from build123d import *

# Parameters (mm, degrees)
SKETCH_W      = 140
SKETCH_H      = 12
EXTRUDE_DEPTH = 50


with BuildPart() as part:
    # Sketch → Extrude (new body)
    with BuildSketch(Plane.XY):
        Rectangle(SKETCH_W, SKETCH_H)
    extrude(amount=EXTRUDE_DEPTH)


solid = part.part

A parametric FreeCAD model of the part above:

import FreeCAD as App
import Part
import Sketcher

V = App.Vector

doc = App.newDocument("Part")
body = doc.addObject("PartDesign::Body", "Body")

# Sketch on XY plane
sketch1 = doc.addObject("Sketcher::SketchObject", "Sketch")
body.addObject(sketch1)
sketch1.AttachmentSupport = (doc.XY_Plane, [""])
sketch1.MapMode = "FlatFace"
sketch1.addGeometry([
    Part.LineSegment(V(-70, 6, 0), V(-70, -6, 0)),
    Part.LineSegment(V(-70, -6, 0), V(70, -6, 0)),
    Part.LineSegment(V(70, -6, 0), V(70, 6, 0)),
    Part.LineSegment(V(70, 6, 0), V(-70, 6, 0)),
], False)
sketch1.addConstraint([
    Sketcher.Constraint("Coincident", 0, 2, 1, 1),
    Sketcher.Constraint("Coincident", 1, 2, 2, 1),
    Sketcher.Constraint("Coincident", 2, 2, 3, 1),
    Sketcher.Constraint("Coincident", 3, 2, 0, 1),
    Sketcher.Constraint("Vertical", 0),
    Sketcher.Constraint("Horizontal", 1),
    Sketcher.Constraint("Vertical", 2),
    Sketcher.Constraint("Horizontal", 3),
    Sketcher.Constraint("Symmetric", 0, 2, 2, 2, -1, 1),
    Sketcher.Constraint("DistanceX", 1, 1, 1, 2, 140.0),
    Sketcher.Constraint("DistanceY", 0, 2, 0, 1, 12.0),
])
pad1 = doc.addObject("PartDesign::Pad", "Pad")
body.addObject(pad1)
pad1.Profile = sketch1
pad1.Length = 50

doc.recompute()
